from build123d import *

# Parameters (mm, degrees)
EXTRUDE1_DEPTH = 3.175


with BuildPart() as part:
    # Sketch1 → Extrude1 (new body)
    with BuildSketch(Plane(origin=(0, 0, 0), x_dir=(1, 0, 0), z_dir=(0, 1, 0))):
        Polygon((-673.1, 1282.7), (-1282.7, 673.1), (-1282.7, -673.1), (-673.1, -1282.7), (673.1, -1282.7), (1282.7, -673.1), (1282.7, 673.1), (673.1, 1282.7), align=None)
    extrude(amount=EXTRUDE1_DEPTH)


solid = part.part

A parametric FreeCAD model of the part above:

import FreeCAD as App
import Part
import Sketcher

V = App.Vector
Q = App.Units.Quantity


def add_polygon(sketch, points):
    """Adds a closed chain of lines whose ends are joined by coincident constraints."""
    first, n = sketch.GeometryCount, len(points)
    for a, b in zip(points, points[1:] + points[:1]):
        sketch.addGeometry(Part.LineSegment(App.Vector(*a, 0), App.Vector(*b, 0)), False)
    for i in range(n):
        sketch.addConstraint(Sketcher.Constraint("Coincident", first + i, 2, first + (i + 1) % n, 1))

doc = App.newDocument("Part")
params = doc.addObject("Spreadsheet::Sheet", "Params")
for row, (alias, value) in enumerate([
    ("sketch1_width", "53 in"),
    ("pad1_length", "0.125 in"),
], start=1):
    params.set(f"A{row}", alias)
    params.set(f"B{row}", "=" + value)
    params.setAlias(f"B{row}", alias)

body = doc.addObject("PartDesign::Body", "Body")

# Sketch on XZ plane
sketch1 = doc.addObject("Sketcher::SketchObject", "Sketch")
body.addObject(sketch1)
sketch1.AttachmentSupport = (doc.XZ_Plane, [""])
sketch1.MapMode = "FlatFace"
add_polygon(sketch1, [(-673, -1283), (-1283, -673), (-1283, 673), (-673, 1283), (673, 1283), (1283, 673), (1283, -673), (673, -1283)])  # lines 0-7
sketch1.addConstraint(Sketcher.Constraint("Vertical", 1))
sketch1.addConstraint(Sketcher.Constraint("Horizontal", 3))
sketch1.addConstraint(Sketcher.Constraint("Vertical", 5))
sketch1.addConstraint(Sketcher.Constraint("Horizontal", 7))
sketch1.addConstraint(Sketcher.Constraint("Symmetric", 0, 2, 4, 2, -1, 1))
sketch1.addConstraint(Sketcher.Constraint("Symmetric", 2, 2, 6, 2, -1, 1))
sketch1.addConstraint(Sketcher.Constraint("Perpendicular", 0, 2))
sketch1.addConstraint(Sketcher.Constraint("Perpendicular", 2, 4))
sketch1.addConstraint(Sketcher.Constraint("Perpendicular", 4, 6))
sketch1.addConstraint(Sketcher.Constraint("Horizontal", 1, 2, 4, 2))
sketch1.addConstraint(Sketcher.Constraint("Vertical", 3, 2, 6, 2))
sketch1.addConstraint(Sketcher.Constraint("Equal", 7, 1))
sketch1.addConstraint(Sketcher.Constraint("DistanceX", 3, 1, 3, 2, Q("53 in")))
sketch1.addConstraint(Sketcher.Constraint("DistanceX", 1, 2, 2, 2, Q("24 in")))
sketch1.setExpression("Constraints[20]", "Params.sketch1_width")
pad1 = doc.addObject("PartDesign::Pad", "Pad")
body.addObject(pad1)
pad1.Profile = sketch1
pad1.setExpression("Length", "Params.pad1_length")
pad1.Reversed = True

doc.recompute()
